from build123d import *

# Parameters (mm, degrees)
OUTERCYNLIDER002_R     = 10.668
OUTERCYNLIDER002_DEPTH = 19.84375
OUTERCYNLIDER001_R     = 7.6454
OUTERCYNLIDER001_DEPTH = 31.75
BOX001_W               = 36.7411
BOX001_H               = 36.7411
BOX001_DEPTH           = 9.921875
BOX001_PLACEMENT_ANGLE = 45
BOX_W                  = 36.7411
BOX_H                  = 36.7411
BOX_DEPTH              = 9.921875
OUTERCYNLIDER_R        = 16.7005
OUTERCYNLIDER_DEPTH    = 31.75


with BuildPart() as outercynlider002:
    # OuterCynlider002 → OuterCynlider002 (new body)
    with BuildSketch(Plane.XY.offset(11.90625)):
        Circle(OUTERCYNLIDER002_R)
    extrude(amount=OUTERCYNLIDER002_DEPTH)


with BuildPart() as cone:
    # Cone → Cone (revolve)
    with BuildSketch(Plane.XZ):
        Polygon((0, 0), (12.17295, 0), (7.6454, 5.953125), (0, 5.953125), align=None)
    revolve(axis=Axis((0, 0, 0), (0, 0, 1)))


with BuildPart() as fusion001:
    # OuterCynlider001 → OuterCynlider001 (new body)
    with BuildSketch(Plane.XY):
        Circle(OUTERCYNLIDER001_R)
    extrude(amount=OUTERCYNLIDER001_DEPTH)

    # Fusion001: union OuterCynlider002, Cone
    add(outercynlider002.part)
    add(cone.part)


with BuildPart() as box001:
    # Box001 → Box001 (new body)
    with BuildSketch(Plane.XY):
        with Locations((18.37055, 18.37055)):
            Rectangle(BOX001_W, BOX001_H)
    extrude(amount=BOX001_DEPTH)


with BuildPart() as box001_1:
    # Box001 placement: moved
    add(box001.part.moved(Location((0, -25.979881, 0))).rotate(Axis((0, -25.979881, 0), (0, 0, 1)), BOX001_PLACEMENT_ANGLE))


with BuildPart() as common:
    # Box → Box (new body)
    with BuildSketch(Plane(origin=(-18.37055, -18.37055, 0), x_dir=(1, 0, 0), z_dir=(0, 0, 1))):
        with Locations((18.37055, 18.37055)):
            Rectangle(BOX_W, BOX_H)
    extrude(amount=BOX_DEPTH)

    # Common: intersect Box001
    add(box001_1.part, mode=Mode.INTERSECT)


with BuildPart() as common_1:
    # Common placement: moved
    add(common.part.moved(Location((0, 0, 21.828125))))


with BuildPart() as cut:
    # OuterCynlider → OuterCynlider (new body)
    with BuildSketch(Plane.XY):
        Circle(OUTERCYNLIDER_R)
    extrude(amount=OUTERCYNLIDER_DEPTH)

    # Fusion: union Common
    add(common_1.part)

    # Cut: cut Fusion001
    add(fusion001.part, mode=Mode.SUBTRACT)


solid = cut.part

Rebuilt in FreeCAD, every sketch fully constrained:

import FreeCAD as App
import Part
import Sketcher

V = App.Vector
Q = App.Units.Quantity

doc = App.newDocument("Part")
body = doc.addObject("PartDesign::Body", "Body")

# Sketch on XY plane
sketch1 = body.newObject("Sketcher::SketchObject", "Sketch")
sketch1.AttachmentSupport = (doc.getObject("XY_Plane"), [""])
sketch1.MapMode = "FlatFace"
sketch1.AttachmentOffset = App.Placement(V(0, 0, 0.46875 * 25.4), App.Rotation())
sketch1.addGeometry(Part.Circle(V(0, 0, 0), V(0, 0, 1), 11), False)
sketch1.addConstraint([
    Sketcher.Constraint("Coincident", 0, 3, -1, 1),
    Sketcher.Constraint("Diameter", 0, Q("0.84 in")),
])
pad1 = body.newObject("PartDesign::Pad", "Pad")
pad1.Profile = sketch1
pad1.Length = Q("0.78125 in")
body2 = doc.addObject("PartDesign::Body", "Body001")

# Sketch on XZ plane
sketch2 = body2.newObject("Sketcher::SketchObject", "Sketch001")
sketch2.AttachmentSupport = (doc.getObject("XZ_Plane001"), [""])
sketch2.MapMode = "FlatFace"
sketch2.addGeometry([
    Part.LineSegment(V(0, 0, 0), V(12, 0, 0)),
    Part.LineSegment(V(12, 0, 0), V(8, 6, 0)),
    Part.LineSegment(V(8, 6, 0), V(0, 6, 0)),
    Part.LineSegment(V(0, 6, 0), V(0, 0, 0)),
], False)
sketch2.addConstraint([
    Sketcher.Constraint("Coincident", 0, 2, 1, 1),
    Sketcher.Constraint("Coincident", 1, 2, 2, 1),
    Sketcher.Constraint("Coincident", 2, 2, 3, 1),
    Sketcher.Constraint("Coincident", 3, 2, 0, 1),
    Sketcher.Constraint("Horizontal", 0),
    Sketcher.Constraint("Horizontal", 2),
    Sketcher.Constraint("Vertical", 3),
    Sketcher.Constraint("Coincident", 3, 2, -1, 1),
    Sketcher.Constraint("DistanceX", 2, 2, 2, 1, Q("0.301 in")),
    Sketcher.Constraint("DistanceY", 3, 2, 3, 1, Q("0.234375 in")),
    Sketcher.Constraint("Distance", 1, 7.479198),
])
revolution = body2.newObject("PartDesign::Revolution", "Revolution")
revolution.Profile = sketch2
revolution.ReferenceAxis = (sketch2, ["V_Axis"])
revolution.Angle = 360
body3 = doc.addObject("PartDesign::Body", "Body002")

# Sketch on XY plane
sketch3 = body3.newObject("Sketcher::SketchObject", "Sketch002")
sketch3.AttachmentSupport = (doc.getObject("XY_Plane002"), [""])
sketch3.MapMode = "FlatFace"
sketch3.addGeometry(Part.Circle(V(0, 0, 0), V(0, 0, 1), 8), False)
sketch3.addConstraint([
    Sketcher.Constraint("Coincident", 0, 3, -1, 1),
    Sketcher.Constraint("Diameter", 0, Q("0.602 in")),
])
pad2 = body3.newObject("PartDesign::Pad", "Pad001")
pad2.Profile = sketch3
pad2.Length = Q("1.25 in")
doc.recompute()

boolean = body3.newObject("PartDesign::Boolean", "Boolean")
boolean.Type = "Fuse"
boolean.addObjects([body])
doc.recompute()

boolean2 = body3.newObject("PartDesign::Boolean", "Boolean001")
boolean2.Type = "Fuse"
boolean2.addObjects([body2])
body4 = doc.addObject("PartDesign::Body", "Body003")

# Sketch on XY plane
sketch4 = body4.newObject("Sketcher::SketchObject", "Sketch003")
sketch4.AttachmentSupport = (doc.getObject("XY_Plane003"), [""])
sketch4.MapMode = "FlatFace"
sketch4.addGeometry([
    Part.LineSegment(V(0, 37, 0), V(0, 0, 0)),
    Part.LineSegment(V(0, 0, 0), V(37, 0, 0)),
    Part.LineSegment(V(37, 0, 0), V(37, 37, 0)),
    Part.LineSegment(V(37, 37, 0), V(0, 37, 0)),
], False)
sketch4.addConstraint([
    Sketcher.Constraint("Coincident", 0, 2, 1, 1),
    Sketcher.Constraint("Coincident", 1, 2, 2, 1),
    Sketcher.Constraint("Coincident", 2, 2, 3, 1),
    Sketcher.Constraint("Coincident", 3, 2, 0, 1),
    Sketcher.Constraint("Vertical", 0),
    Sketcher.Constraint("Horizontal", 1),
    Sketcher.Constraint("Vertical", 2),
    Sketcher.Constraint("Horizontal", 3),
    Sketcher.Constraint("Coincident", 0, 2, -1, 1),
    Sketcher.Constraint("Equal", 3, 0),
    Sketcher.Constraint("DistanceX", 1, 1, 1, 2, Q("1.4465 in")),
])
pad3 = body4.newObject("PartDesign::Pad", "Pad002")
pad3.Profile = sketch4
pad3.Length = Q("0.390625 in")
body5 = doc.addObject("PartDesign::Body", "Body004")
doc.recompute()

body4.Placement = App.Placement(V(0, -25.979881, 0), App.Rotation(V(0, 0, 1), 45))
boolean3 = body5.newObject("PartDesign::Boolean", "Boolean002")
boolean3.Type = "Fuse"
boolean3.addObjects([body4])
body6 = doc.addObject("PartDesign::Body", "Body005")

# Sketch on XY plane
sketch5 = body6.newObject("Sketcher::SketchObject", "Sketch004")
sketch5.AttachmentSupport = (doc.getObject("XY_Plane005"), [""])
sketch5.MapMode = "FlatFace"
sketch5.addGeometry([
    Part.LineSegment(V(-18, 18, 0), V(-18, -18, 0)),
    Part.LineSegment(V(-18, -18, 0), V(18, -18, 0)),
    Part.LineSegment(V(18, -18, 0), V(18, 18, 0)),
    Part.LineSegment(V(18, 18, 0), V(-18, 18, 0)),
], False)
sketch5.addConstraint([
    Sketcher.Constraint("Coincident", 0, 2, 1, 1),
    Sketcher.Constraint("Coincident", 1, 2, 2, 1),
    Sketcher.Constraint("Coincident", 2, 2, 3, 1),
    Sketcher.Constraint("Coincident", 3, 2, 0, 1),
    Sketcher.Constraint("Vertical", 0),
    Sketcher.Constraint("Horizontal", 1),
    Sketcher.Constraint("Vertical", 2),
    Sketcher.Constraint("Horizontal", 3),
    Sketcher.Constraint("Symmetric", 0, 2, 2, 2, -1, 1),
    Sketcher.Constraint("Equal", 3, 0),
    Sketcher.Constraint("DistanceX", 1, 1, 1, 2, Q("1.4465 in")),
])
pad4 = body6.newObject("PartDesign::Pad", "Pad003")
pad4.Profile = sketch5
pad4.Length = Q("0.390625 in")
doc.recompute()

boolean4 = body6.newObject("PartDesign::Boolean", "Boolean003")
boolean4.Type = "Common"
boolean4.addObjects([body5])
body7 = doc.addObject("PartDesign::Body", "Body006")
doc.recompute()

body6.Placement = App.Placement(V(0, 0, 21.828125), App.Rotation(V(0, 0, 1), 0))
boolean5 = body7.newObject("PartDesign::Boolean", "Boolean004")
boolean5.Type = "Fuse"
boolean5.addObjects([body6])
body8 = doc.addObject("PartDesign::Body", "Body007")

# Sketch on XY plane
sketch6 = body8.newObject("Sketcher::SketchObject", "Sketch005")
sketch6.AttachmentSupport = (doc.getObject("XY_Plane007"), [""])
sketch6.MapMode = "FlatFace"
sketch6.addGeometry(Part.Circle(V(0, 0, 0), V(0, 0, 1), 17), False)
sketch6.addConstraint([
    Sketcher.Constraint("Coincident", 0, 3, -1, 1),
    Sketcher.Constraint("Diameter", 0, Q("1.315 in")),
])
pad5 = body8.newObject("PartDesign::Pad", "Pad004")
pad5.Profile = sketch6
pad5.Length = Q("1.25 in")
doc.recompute()

boolean6 = body8.newObject("PartDesign::Boolean", "Boolean005")
boolean6.Type = "Fuse"
boolean6.addObjects([body7])
doc.recompute()

boolean7 = body8.newObject("PartDesign::Boolean", "Boolean006")
boolean7.Type = "Cut"
boolean7.addObjects([body3])

doc.recompute()
